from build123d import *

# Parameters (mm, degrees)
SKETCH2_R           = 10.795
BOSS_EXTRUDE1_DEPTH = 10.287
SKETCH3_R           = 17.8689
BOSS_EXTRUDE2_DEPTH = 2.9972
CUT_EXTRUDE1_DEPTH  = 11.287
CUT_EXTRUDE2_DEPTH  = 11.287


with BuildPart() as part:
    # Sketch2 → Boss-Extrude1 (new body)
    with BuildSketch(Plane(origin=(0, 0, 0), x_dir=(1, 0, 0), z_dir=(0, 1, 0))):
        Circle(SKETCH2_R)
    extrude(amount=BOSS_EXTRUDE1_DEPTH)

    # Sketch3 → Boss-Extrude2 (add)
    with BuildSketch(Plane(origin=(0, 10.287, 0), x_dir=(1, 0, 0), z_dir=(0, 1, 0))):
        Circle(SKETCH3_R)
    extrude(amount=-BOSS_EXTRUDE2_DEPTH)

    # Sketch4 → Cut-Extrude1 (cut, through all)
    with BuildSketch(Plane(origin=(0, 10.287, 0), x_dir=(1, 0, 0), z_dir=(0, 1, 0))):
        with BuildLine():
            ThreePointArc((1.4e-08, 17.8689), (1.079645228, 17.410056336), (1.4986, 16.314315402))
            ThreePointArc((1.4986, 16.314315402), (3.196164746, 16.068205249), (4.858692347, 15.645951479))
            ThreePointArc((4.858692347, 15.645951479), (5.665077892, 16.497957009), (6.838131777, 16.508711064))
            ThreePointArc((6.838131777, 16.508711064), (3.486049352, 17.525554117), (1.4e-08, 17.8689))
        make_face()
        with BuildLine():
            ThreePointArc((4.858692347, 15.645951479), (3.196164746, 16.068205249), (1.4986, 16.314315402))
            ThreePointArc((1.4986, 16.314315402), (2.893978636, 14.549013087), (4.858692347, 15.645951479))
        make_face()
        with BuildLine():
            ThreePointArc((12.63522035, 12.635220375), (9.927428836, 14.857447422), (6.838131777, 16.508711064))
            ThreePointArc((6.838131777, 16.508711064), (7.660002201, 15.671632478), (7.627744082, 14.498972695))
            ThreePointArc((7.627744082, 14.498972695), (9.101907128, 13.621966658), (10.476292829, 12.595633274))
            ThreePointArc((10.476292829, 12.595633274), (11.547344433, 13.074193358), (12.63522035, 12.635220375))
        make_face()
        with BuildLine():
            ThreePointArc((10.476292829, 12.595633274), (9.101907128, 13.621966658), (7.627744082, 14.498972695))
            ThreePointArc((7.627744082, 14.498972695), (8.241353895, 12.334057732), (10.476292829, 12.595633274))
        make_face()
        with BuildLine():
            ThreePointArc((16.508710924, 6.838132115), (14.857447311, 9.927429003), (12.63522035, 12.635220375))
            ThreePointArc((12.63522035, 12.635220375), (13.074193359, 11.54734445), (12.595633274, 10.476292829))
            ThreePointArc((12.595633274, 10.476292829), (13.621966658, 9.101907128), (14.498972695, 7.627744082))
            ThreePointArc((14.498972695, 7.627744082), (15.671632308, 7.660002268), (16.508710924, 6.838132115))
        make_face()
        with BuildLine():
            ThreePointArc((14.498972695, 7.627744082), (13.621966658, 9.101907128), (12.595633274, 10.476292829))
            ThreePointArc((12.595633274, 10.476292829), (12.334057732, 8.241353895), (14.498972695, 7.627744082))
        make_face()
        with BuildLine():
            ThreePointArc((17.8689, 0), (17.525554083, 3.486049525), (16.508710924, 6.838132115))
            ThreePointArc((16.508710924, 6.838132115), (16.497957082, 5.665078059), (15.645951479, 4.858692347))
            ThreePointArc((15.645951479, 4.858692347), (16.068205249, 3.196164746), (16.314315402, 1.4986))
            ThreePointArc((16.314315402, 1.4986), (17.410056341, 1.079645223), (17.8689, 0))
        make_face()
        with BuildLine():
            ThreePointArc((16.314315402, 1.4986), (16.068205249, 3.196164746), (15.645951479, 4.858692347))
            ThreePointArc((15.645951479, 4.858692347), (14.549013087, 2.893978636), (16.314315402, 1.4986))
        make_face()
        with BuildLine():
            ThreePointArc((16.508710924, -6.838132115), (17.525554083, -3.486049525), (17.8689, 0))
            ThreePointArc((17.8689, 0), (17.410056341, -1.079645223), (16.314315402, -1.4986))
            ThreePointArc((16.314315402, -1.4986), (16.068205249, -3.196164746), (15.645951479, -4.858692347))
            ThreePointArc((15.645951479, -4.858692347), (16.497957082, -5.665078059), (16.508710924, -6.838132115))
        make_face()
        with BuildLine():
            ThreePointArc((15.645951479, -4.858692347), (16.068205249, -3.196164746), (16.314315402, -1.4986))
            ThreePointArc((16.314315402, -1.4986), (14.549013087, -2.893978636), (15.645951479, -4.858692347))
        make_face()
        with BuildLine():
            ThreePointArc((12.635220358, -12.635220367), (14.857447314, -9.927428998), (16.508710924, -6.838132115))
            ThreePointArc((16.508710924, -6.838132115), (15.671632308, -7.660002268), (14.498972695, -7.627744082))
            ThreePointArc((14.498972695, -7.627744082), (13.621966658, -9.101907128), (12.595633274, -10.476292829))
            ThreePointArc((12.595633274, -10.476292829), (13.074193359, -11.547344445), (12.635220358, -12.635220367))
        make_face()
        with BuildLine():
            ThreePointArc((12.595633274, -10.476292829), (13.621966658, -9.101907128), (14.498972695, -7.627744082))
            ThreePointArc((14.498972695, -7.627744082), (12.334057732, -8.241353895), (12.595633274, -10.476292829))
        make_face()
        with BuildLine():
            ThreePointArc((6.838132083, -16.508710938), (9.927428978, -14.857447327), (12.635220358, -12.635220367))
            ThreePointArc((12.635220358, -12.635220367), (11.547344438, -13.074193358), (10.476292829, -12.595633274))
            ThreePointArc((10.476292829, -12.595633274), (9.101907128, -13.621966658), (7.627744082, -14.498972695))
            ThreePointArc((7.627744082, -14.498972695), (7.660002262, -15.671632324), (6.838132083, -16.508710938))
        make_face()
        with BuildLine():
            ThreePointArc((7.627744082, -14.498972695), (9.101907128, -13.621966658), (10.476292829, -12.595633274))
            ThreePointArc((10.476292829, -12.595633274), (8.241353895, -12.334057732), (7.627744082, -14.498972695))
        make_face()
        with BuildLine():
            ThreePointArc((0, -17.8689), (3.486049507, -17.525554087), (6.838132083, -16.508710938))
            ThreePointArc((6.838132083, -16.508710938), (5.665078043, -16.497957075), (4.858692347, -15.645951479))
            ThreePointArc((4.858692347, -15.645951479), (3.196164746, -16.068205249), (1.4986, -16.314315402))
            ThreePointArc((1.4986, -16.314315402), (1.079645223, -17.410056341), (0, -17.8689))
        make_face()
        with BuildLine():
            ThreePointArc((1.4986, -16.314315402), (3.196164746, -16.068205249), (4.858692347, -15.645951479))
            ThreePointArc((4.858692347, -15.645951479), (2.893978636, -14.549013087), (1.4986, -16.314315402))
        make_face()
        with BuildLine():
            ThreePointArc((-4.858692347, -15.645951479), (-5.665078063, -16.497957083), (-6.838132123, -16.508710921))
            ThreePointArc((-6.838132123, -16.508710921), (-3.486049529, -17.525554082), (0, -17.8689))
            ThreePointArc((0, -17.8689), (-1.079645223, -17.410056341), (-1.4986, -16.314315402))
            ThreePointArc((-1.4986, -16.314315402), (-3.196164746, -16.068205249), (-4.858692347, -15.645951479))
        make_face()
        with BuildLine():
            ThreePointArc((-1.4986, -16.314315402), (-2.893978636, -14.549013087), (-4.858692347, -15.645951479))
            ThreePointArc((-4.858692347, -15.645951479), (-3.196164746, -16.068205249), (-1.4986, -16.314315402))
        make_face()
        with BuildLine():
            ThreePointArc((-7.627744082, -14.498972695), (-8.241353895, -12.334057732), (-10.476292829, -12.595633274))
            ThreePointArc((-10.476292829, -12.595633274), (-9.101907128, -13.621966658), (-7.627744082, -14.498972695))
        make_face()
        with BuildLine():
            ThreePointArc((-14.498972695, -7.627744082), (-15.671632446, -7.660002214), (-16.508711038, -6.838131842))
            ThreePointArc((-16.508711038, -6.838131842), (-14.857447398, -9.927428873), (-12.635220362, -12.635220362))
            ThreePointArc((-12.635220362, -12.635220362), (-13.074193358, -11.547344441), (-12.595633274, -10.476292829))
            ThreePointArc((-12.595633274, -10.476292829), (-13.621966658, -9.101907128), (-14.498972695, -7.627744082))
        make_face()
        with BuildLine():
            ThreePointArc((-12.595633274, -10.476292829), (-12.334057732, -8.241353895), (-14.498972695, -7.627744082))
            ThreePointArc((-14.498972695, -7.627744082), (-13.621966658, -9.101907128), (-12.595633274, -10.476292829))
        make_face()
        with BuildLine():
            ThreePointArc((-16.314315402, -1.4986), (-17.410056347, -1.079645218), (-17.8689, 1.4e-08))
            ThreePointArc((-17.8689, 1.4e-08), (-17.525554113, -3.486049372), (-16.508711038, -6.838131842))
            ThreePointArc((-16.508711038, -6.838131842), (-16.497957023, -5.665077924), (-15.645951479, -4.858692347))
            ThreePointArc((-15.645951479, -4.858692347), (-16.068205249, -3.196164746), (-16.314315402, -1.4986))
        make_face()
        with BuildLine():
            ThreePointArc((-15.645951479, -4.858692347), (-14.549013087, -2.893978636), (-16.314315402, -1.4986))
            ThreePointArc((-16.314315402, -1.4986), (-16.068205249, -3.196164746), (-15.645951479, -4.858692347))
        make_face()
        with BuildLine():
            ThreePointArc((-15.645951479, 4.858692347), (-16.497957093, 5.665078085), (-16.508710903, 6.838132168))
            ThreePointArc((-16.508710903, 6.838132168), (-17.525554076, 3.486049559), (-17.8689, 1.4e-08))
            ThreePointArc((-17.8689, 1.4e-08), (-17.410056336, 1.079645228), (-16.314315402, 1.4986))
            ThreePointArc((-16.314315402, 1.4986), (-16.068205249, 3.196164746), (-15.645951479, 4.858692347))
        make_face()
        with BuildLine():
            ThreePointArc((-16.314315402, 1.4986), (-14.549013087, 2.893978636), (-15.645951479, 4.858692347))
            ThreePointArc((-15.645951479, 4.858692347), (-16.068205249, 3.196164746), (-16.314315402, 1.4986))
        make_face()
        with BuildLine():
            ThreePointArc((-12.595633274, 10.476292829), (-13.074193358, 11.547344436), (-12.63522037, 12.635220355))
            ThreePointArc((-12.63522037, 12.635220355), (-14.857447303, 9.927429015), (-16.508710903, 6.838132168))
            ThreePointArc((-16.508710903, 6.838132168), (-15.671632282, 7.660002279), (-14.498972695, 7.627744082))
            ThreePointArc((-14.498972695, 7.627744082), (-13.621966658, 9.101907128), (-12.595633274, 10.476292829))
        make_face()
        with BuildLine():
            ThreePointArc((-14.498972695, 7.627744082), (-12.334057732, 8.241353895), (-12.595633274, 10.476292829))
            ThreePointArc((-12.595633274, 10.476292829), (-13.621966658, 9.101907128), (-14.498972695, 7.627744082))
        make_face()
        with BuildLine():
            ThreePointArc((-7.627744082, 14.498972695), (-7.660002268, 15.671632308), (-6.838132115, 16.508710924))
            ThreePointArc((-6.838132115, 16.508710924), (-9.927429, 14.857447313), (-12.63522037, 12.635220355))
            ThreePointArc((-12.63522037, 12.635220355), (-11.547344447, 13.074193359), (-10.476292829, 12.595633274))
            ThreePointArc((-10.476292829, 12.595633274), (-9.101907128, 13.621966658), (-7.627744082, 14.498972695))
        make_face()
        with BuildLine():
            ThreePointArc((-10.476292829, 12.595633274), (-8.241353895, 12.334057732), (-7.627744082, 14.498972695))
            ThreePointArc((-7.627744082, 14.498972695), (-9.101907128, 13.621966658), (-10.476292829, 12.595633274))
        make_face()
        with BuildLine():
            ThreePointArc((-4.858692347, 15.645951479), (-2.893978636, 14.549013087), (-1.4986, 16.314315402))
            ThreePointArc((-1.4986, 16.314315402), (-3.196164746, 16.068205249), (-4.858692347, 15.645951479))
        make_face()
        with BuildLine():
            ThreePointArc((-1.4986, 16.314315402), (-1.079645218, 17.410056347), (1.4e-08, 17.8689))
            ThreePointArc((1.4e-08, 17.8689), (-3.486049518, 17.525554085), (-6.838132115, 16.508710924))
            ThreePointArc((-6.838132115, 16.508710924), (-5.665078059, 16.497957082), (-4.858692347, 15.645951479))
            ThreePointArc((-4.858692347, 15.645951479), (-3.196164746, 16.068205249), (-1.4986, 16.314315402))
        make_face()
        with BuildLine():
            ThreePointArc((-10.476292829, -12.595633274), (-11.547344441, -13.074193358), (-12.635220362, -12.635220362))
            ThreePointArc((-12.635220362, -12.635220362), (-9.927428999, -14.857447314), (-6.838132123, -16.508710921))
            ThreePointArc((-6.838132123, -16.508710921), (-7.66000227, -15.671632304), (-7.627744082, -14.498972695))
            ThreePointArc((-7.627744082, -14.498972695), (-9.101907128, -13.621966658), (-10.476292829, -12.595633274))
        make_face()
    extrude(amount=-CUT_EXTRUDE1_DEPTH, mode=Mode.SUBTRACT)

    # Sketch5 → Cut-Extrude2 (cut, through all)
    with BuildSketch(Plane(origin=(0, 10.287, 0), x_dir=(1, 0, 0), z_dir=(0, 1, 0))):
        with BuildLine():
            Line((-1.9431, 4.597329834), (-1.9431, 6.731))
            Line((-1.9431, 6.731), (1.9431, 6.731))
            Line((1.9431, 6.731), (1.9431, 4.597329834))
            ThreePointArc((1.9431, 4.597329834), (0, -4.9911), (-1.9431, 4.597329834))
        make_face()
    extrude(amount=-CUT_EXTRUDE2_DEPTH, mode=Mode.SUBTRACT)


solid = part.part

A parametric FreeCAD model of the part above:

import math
import FreeCAD as App
import Part
import Sketcher
Q = App.Units.Quantity

doc = App.newDocument("Part")
body = doc.addObject("PartDesign::Body", "Body")

# Sketch on XZ plane
sketch1 = body.newObject("Sketcher::SketchObject", "Sketch")
sketch1.AttachmentSupport = (doc.getObject("XZ_Plane"), [""])
sketch1.MapMode = "FlatFace"
sketch1.addGeometry(Part.Circle(App.Vector(0, 0, 0), App.Vector(0, 0, 1), 11), False)
sketch1.addConstraint([
    Sketcher.Constraint("Coincident", 0, 3, -1, 1),
    Sketcher.Constraint("Diameter", 0, Q("0.85 in")),
])
pad1 = body.newObject("PartDesign::Pad", "Pad")
pad1.Profile = sketch1
pad1.Length = Q("0.405 in")
pad1.Reversed = True

# Sketch on XZ plane
sketch2 = body.newObject("Sketcher::SketchObject", "Sketch001")
sketch2.AttachmentSupport = (doc.getObject("XZ_Plane"), [""])
sketch2.MapMode = "FlatFace"
sketch2.AttachmentOffset = App.Placement(App.Vector(0, 0, -0.405 * 25.4), App.Rotation())
sketch2.addGeometry(Part.Circle(App.Vector(0, 0, 0), App.Vector(0, 0, 1), 18), False)
sketch2.addConstraint([
    Sketcher.Constraint("Coincident", 0, 3, -1, 1),
    Sketcher.Constraint("Diameter", 0, Q("1.407 in")),
])
pad2 = body.newObject("PartDesign::Pad", "Pad001")
pad2.Profile = sketch2
pad2.Length = Q("0.118 in")

# Sketch on XZ plane
sketch3 = body.newObject("Sketcher::SketchObject", "Sketch002")
sketch3.AttachmentSupport = (doc.getObject("XZ_Plane"), [""])
sketch3.MapMode = "FlatFace"
sketch3.AttachmentOffset = App.Placement(App.Vector(0, 0, -0.405 * 25.4), App.Rotation())
sketch3.addGeometry([
    Part.ArcOfCircle(Part.Circle(App.Vector(0, -16.4, 0), App.Vector(0, 0, 1), 1.5), math.radians(-90), math.radians(2)),  # 0
    Part.ArcOfCircle(Part.Circle(App.Vector(3.2, -16.3, 0), App.Vector(0, 0, 1), 1.7), math.radians(20), math.radians(182)),  # 1
    Part.ArcOfCircle(Part.Circle(App.Vector(6.3, -15.1, 0), App.Vector(0, 0, 1), 1.5), math.radians(-160), math.radians(-68)),  # 2
    Part.ArcOfCircle(Part.Circle(App.Vector(0, 0, 0), App.Vector(0, 0, 1), 17.9), math.radians(-90), math.radians(-68)),  # 3
    Part.ArcOfCircle(Part.Circle(App.Vector(0, 0, 0), App.Vector(0, 0, 1), 17.9), math.radians(-68), math.radians(-45)),  # 4
    Part.ArcOfCircle(Part.Circle(App.Vector(6.3, -15.1, 0), App.Vector(0, 0, 1), 1.5), math.radians(-68), math.radians(25)),  # 5
    Part.ArcOfCircle(Part.Circle(App.Vector(9.2, -13.8, 0), App.Vector(0, 0, 1), 1.7), math.radians(43), math.radians(205)),  # 6
    Part.ArcOfCircle(Part.Circle(App.Vector(11.6, -11.6, 0), App.Vector(0, 0, 1), 1.5), math.radians(-137), math.radians(-45)),  # 7
    Part.ArcOfCircle(Part.Circle(App.Vector(0, 0, 0), App.Vector(0, 0, 1), 17.9), math.radians(-45), math.radians(-23)),  # 8
    Part.ArcOfCircle(Part.Circle(App.Vector(11.6, -11.6, 0), App.Vector(0, 0, 1), 1.5), math.radians(-45), math.radians(47)),  # 9
    Part.ArcOfCircle(Part.Circle(App.Vector(13.8, -9.2, 0), App.Vector(0, 0, 1), 1.7), math.radians(65), math.radians(227)),  # 10
    Part.ArcOfCircle(Part.Circle(App.Vector(15.1, -6.3, 0), App.Vector(0, 0, 1), 1.5), math.radians(-115), math.radians(-23)),  # 11
    Part.ArcOfCircle(Part.Circle(App.Vector(0, 0, 0), App.Vector(0, 0, 1), 17.9), math.radians(-23), math.radians(0)),  # 12
    Part.ArcOfCircle(Part.Circle(App.Vector(15.1, -6.3, 0), App.Vector(0, 0, 1), 1.5), math.radians(-23), math.radians(70)),  # 13
    Part.ArcOfCircle(Part.Circle(App.Vector(16.3, -3.2, 0), App.Vector(0, 0, 1), 1.7), math.radians(88), math.radians(250)),  # 14
    Part.ArcOfCircle(Part.Circle(App.Vector(16.4, 0, 0), App.Vector(0, 0, 1), 1.5), math.radians(-92), math.radians(0)),  # 15
    Part.ArcOfCircle(Part.Circle(App.Vector(0, 0, 0), App.Vector(0, 0, 1), 17.9), math.radians(0), math.radians(23)),  # 16
    Part.ArcOfCircle(Part.Circle(App.Vector(16.4, 0, 0), App.Vector(0, 0, 1), 1.5), math.radians(0), math.radians(92)),  # 17
    Part.ArcOfCircle(Part.Circle(App.Vector(16.3, 3.2, 0), App.Vector(0, 0, 1), 1.7), math.radians(110), math.radians(272)),  # 18
    Part.ArcOfCircle(Part.Circle(App.Vector(15.1, 6.3, 0), App.Vector(0, 0, 1), 1.5), math.radians(-70), math.radians(23)),  # 19
    Part.ArcOfCircle(Part.Circle(App.Vector(0, 0, 0), App.Vector(0, 0, 1), 17.9), math.radians(23), math.radians(45)),  # 20
    Part.ArcOfCircle(Part.Circle(App.Vector(15.1, 6.3, 0), App.Vector(0, 0, 1), 1.5), math.radians(23), math.radians(115)),  # 21
    Part.ArcOfCircle(Part.Circle(App.Vector(13.8, 9.2, 0), App.Vector(0, 0, 1), 1.7), math.radians(133), math.radians(295)),  # 22
    Part.ArcOfCircle(Part.Circle(App.Vector(11.6, 11.6, 0), App.Vector(0, 0, 1), 1.5), math.radians(-47), math.radians(45)),  # 23
    Part.ArcOfCircle(Part.Circle(App.Vector(0, 0, 0), App.Vector(0, 0, 1), 17.9), math.radians(45), math.radians(67)),  # 24
    Part.ArcOfCircle(Part.Circle(App.Vector(11.6, 11.6, 0), App.Vector(0, 0, 1), 1.5), math.radians(45), math.radians(137)),  # 25
    Part.ArcOfCircle(Part.Circle(App.Vector(9.2, 13.8, 0), App.Vector(0, 0, 1), 1.7), math.radians(155), math.radians(317)),  # 26
    Part.ArcOfCircle(Part.Circle(App.Vector(6.3, 15.1, 0), App.Vector(0, 0, 1), 1.5), math.radians(-25), math.radians(67)),  # 27
    Part.ArcOfCircle(Part.Circle(App.Vector(0, 0, 0), App.Vector(0, 0, 1), 17.9), math.radians(67), math.radians(90)),  # 28
    Part.ArcOfCircle(Part.Circle(App.Vector(6.3, 15.1, 0), App.Vector(0, 0, 1), 1.5), math.radians(67), math.radians(160)),  # 29
    Part.ArcOfCircle(Part.Circle(App.Vector(3.2, 16.3, 0), App.Vector(0, 0, 1), 1.7), math.radians(178), math.radians(340)),  # 30
    Part.ArcOfCircle(Part.Circle(App.Vector(0, 16.4, 0), App.Vector(0, 0, 1), 1.5), math.radians(-2), math.radians(90)),  # 31
    Part.ArcOfCircle(Part.Circle(App.Vector(-6.3, 15.1, 0), App.Vector(0, 0, 1), 1.5), math.radians(20), math.radians(113)),  # 32
    Part.ArcOfCircle(Part.Circle(App.Vector(0, 0, 0), App.Vector(0, 0, 1), 17.9), math.radians(90), math.radians(113)),  # 33
    Part.ArcOfCircle(Part.Circle(App.Vector(0, 16.4, 0), App.Vector(0, 0, 1), 1.5), math.radians(90), math.radians(182)),  # 34
    Part.ArcOfCircle(Part.Circle(App.Vector(-3.2, 16.3, 0), App.Vector(0, 0, 1), 1.7), math.radians(-160), math.radians(2)),  # 35
    Part.ArcOfCircle(Part.Circle(App.Vector(-9.2, 13.8, 0), App.Vector(0, 0, 1), 1.7), math.radians(-137), math.radians(25)),  # 36
    Part.ArcOfCircle(Part.Circle(App.Vector(-11.6, 11.6, 0), App.Vector(0, 0, 1), 1.5), math.radians(43), math.radians(135)),  # 37
    Part.ArcOfCircle(Part.Circle(App.Vector(0, 0, 0), App.Vector(0, 0, 1), 17.9), math.radians(113), math.radians(135)),  # 38
    Part.ArcOfCircle(Part.Circle(App.Vector(-6.3, 15.1, 0), App.Vector(0, 0, 1), 1.5), math.radians(113), math.radians(205)),  # 39
    Part.ArcOfCircle(Part.Circle(App.Vector(-15.1, 6.3, 0), App.Vector(0, 0, 1), 1.5), math.radians(65), math.radians(158)),  # 40
    Part.ArcOfCircle(Part.Circle(App.Vector(0, 0, 0), App.Vector(0, 0, 1), 17.9), math.radians(135), math.radians(158)),  # 41
    Part.ArcOfCircle(Part.Circle(App.Vector(-11.6, 11.6, 0), App.Vector(0, 0, 1), 1.5), math.radians(135), math.radians(227)),  # 42
    Part.ArcOfCircle(Part.Circle(App.Vector(-13.8, 9.2, 0), App.Vector(0, 0, 1), 1.7), math.radians(-115), math.radians(47)),  # 43
    Part.ArcOfCircle(Part.Circle(App.Vector(-16.4, 0, 0), App.Vector(0, 0, 1), 1.5), math.radians(88), math.radians(180)),  # 44
    Part.ArcOfCircle(Part.Circle(App.Vector(0, 0, 0), App.Vector(0, 0, 1), 17.9), math.radians(158), math.radians(180)),  # 45
    Part.ArcOfCircle(Part.Circle(App.Vector(-15.1, 6.3, 0), App.Vector(0, 0, 1), 1.5), math.radians(158), math.radians(250)),  # 46
    Part.ArcOfCircle(Part.Circle(App.Vector(-16.3, 3.2, 0), App.Vector(0, 0, 1), 1.7), math.radians(-92), math.radians(70)),  # 47
    Part.ArcOfCircle(Part.Circle(App.Vector(-15.1, -6.3, 0), App.Vector(0, 0, 1), 1.5), math.radians(110), math.radians(203)),  # 48
    Part.ArcOfCircle(Part.Circle(App.Vector(0, 0, 0), App.Vector(0, 0, 1), 17.9), math.radians(-180), math.radians(-157)),  # 49
    Part.ArcOfCircle(Part.Circle(App.Vector(-16.4, 0, 0), App.Vector(0, 0, 1), 1.5), math.radians(-180), math.radians(-88)),  # 50
    Part.ArcOfCircle(Part.Circle(App.Vector(-16.3, -3.2, 0), App.Vector(0, 0, 1), 1.7), math.radians(-70), math.radians(92)),  # 51
    Part.ArcOfCircle(Part.Circle(App.Vector(-11.6, -11.6, 0), App.Vector(0, 0, 1), 1.5), math.radians(133), math.radians(225)),  # 52
    Part.ArcOfCircle(Part.Circle(App.Vector(0, 0, 0), App.Vector(0, 0, 1), 17.9), math.radians(-157), math.radians(-135)),  # 53
    Part.ArcOfCircle(Part.Circle(App.Vector(-15.1, -6.3, 0), App.Vector(0, 0, 1), 1.5), math.radians(-157), math.radians(-65)),  # 54
    Part.ArcOfCircle(Part.Circle(App.Vector(-13.8, -9.2, 0), App.Vector(0, 0, 1), 1.7), math.radians(-47), math.radians(115)),  # 55
    Part.ArcOfCircle(Part.Circle(App.Vector(-6.3, -15.1, 0), App.Vector(0, 0, 1), 1.5), math.radians(155), math.radians(247)),  # 56
    Part.ArcOfCircle(Part.Circle(App.Vector(0, 0, 0), App.Vector(0, 0, 1), 17.9), math.radians(-135), math.radians(-113)),  # 57
    Part.ArcOfCircle(Part.Circle(App.Vector(-11.6, -11.6, 0), App.Vector(0, 0, 1), 1.5), math.radians(-135), math.radians(-43)),  # 58
    Part.ArcOfCircle(Part.Circle(App.Vector(-9.2, -13.8, 0), App.Vector(0, 0, 1), 1.7), math.radians(-25), math.radians(137)),  # 59
    Part.ArcOfCircle(Part.Circle(App.Vector(-3.2, -16.3, 0), App.Vector(0, 0, 1), 1.7), math.radians(-2), math.radians(160)),  # 60
    Part.ArcOfCircle(Part.Circle(App.Vector(0, -16.4, 0), App.Vector(0, 0, 1), 1.5), math.radians(178), math.radians(270)),  # 61
    Part.ArcOfCircle(Part.Circle(App.Vector(0, 0, 0), App.Vector(0, 0, 1), 17.9), math.radians(-113), math.radians(-90)),  # 62
    Part.ArcOfCircle(Part.Circle(App.Vector(-6.3, -15.1, 0), App.Vector(0, 0, 1), 1.5), math.radians(-113), math.radians(-20)),  # 63
], False)
sketch3.addConstraint([
    Sketcher.Constraint("Tangent", 0, 2, 1, 2),
    Sketcher.Constraint("Tangent", 1, 1, 2, 1),
    Sketcher.Constraint("Tangent", 2, 2, 3, 2),
    Sketcher.Constraint("Tangent", 3, 1, 0, 1),
    Sketcher.Constraint("Tangent", 4, 1, 5, 1),
    Sketcher.Constraint("Tangent", 5, 2, 6, 2),
    Sketcher.Constraint("Tangent", 6, 1, 7, 1),
    Sketcher.Constraint("Tangent", 7, 2, 4, 2),
    Sketcher.Constraint("Tangent", 8, 1, 9, 1),
    Sketcher.Constraint("Tangent", 9, 2, 10, 2),
    Sketcher.Constraint("Tangent", 10, 1, 11, 1),
    Sketcher.Constraint("Tangent", 11, 2, 8, 2),
    Sketcher.Constraint("Tangent", 12, 1, 13, 1),
    Sketcher.Constraint("Tangent", 13, 2, 14, 2),
    Sketcher.Constraint("Tangent", 14, 1, 15, 1),
    Sketcher.Constraint("Tangent", 15, 2, 12, 2),
    Sketcher.Constraint("Tangent", 16, 1, 17, 1),
    Sketcher.Constraint("Tangent", 17, 2, 18, 2),
    Sketcher.Constraint("Tangent", 18, 1, 19, 1),
    Sketcher.Constraint("Tangent", 19, 2, 16, 2),
    Sketcher.Constraint("Tangent", 20, 1, 21, 1),
    Sketcher.Constraint("Tangent", 21, 2, 22, 2),
    Sketcher.Constraint("Tangent", 22, 1, 23, 1),
    Sketcher.Constraint("Tangent", 23, 2, 20, 2),
    Sketcher.Constraint("Tangent", 24, 1, 25, 1),
    Sketcher.Constraint("Tangent", 25, 2, 26, 2),
    Sketcher.Constraint("Tangent", 26, 1, 27, 1),
    Sketcher.Constraint("Tangent", 27, 2, 24, 2),
    Sketcher.Constraint("Tangent", 28, 1, 29, 1),
    Sketcher.Constraint("Tangent", 29, 2, 30, 2),
    Sketcher.Constraint("Tangent", 30, 1, 31, 1),
    Sketcher.Constraint("Tangent", 31, 2, 28, 2),
    Sketcher.Constraint("Tangent", 32, 2, 33, 2),
    Sketcher.Constraint("Tangent", 33, 1, 34, 1),
    Sketcher.Constraint("Tangent", 34, 2, 35, 2),
    Sketcher.Constraint("Tangent", 35, 1, 32, 1),
    Sketcher.Constraint("Tangent", 36, 1, 37, 1),
    Sketcher.Constraint("Tangent", 37, 2, 38, 2),
    Sketcher.Constraint("Tangent", 38, 1, 39, 1),
    Sketcher.Constraint("Tangent", 39, 2, 36, 2),
    Sketcher.Constraint("Tangent", 40, 2, 41, 2),
    Sketcher.Constraint("Tangent", 41, 1, 42, 1),
    Sketcher.Constraint("Tangent", 42, 2, 43, 2),
    Sketcher.Constraint("Tangent", 43, 1, 40, 1),
    Sketcher.Constraint("Tangent", 44, 2, 45, 2),
    Sketcher.Constraint("Tangent", 45, 1, 46, 1),
    Sketcher.Constraint("Tangent", 46, 2, 47, 2),
    Sketcher.Constraint("Tangent", 47, 1, 44, 1),
    Sketcher.Constraint("Tangent", 48, 2, 49, 2),
    Sketcher.Constraint("Tangent", 49, 1, 50, 1),
    Sketcher.Constraint("Tangent", 50, 2, 51, 2),
    Sketcher.Constraint("Tangent", 51, 1, 48, 1),
    Sketcher.Constraint("Tangent", 52, 2, 53, 2),
    Sketcher.Constraint("Tangent", 53, 1, 54, 1),
    Sketcher.Constraint("Tangent", 54, 2, 55, 2),
    Sketcher.Constraint("Tangent", 55, 1, 52, 1),
    Sketcher.Constraint("Tangent", 56, 2, 57, 2),
    Sketcher.Constraint("Tangent", 57, 1, 58, 1),
    Sketcher.Constraint("Tangent", 58, 2, 59, 2),
    Sketcher.Constraint("Tangent", 59, 1, 56, 1),
    Sketcher.Constraint("Tangent", 60, 1, 61, 1),
    Sketcher.Constraint("Tangent", 61, 2, 62, 2),
    Sketcher.Constraint("Tangent", 62, 1, 63, 1),
    Sketcher.Constraint("Tangent", 63, 2, 60, 2),
    Sketcher.Constraint("Coincident", 3, 3, -1, 1),
    Sketcher.Constraint("Coincident", 4, 3, -1, 1),
    Sketcher.Constraint("Coincident", 8, 3, -1, 1),
    Sketcher.Constraint("Coincident", 12, 3, -1, 1),
    Sketcher.Constraint("Coincident", 16, 3, -1, 1),
    Sketcher.Constraint("Coincident", 20, 3, -1, 1),
    Sketcher.Constraint("Coincident", 24, 3, -1, 1),
    Sketcher.Constraint("Coincident", 28, 3, -1, 1),
    Sketcher.Constraint("Coincident", 33, 3, -1, 1),
    Sketcher.Constraint("Coincident", 38, 3, -1, 1),
    Sketcher.Constraint("Coincident", 41, 3, -1, 1),
    Sketcher.Constraint("Coincident", 45, 3, -1, 1),
    Sketcher.Constraint("Coincident", 49, 3, -1, 1),
    Sketcher.Constraint("Coincident", 53, 3, -1, 1),
    Sketcher.Constraint("Coincident", 57, 3, -1, 1),
    Sketcher.Constraint("Coincident", 62, 3, -1, 1),
    Sketcher.Constraint("Coincident", 5, 3, 2, 3),
    Sketcher.Constraint("Coincident", 9, 3, 7, 3),
    Sketcher.Constraint("Coincident", 13, 3, 11, 3),
    Sketcher.Constraint("Coincident", 17, 3, 15, 3),
    Sketcher.Constraint("Coincident", 21, 3, 19, 3),
    Sketcher.Constraint("Coincident", 25, 3, 23, 3),
    Sketcher.Constraint("Coincident", 29, 3, 27, 3),
    Sketcher.Constraint("Coincident", 34, 3, 31, 3),
    Sketcher.Constraint("Coincident", 39, 3, 32, 3),
    Sketcher.Constraint("Coincident", 42, 3, 37, 3),
    Sketcher.Constraint("Coincident", 46, 3, 40, 3),
    Sketcher.Constraint("Coincident", 50, 3, 44, 3),
    Sketcher.Constraint("Coincident", 54, 3, 48, 3),
    Sketcher.Constraint("Coincident", 58, 3, 52, 3),
    Sketcher.Constraint("Coincident", 61, 3, 0, 3),
    Sketcher.Constraint("Coincident", 63, 3, 56, 3),
    Sketcher.Constraint("Equal", 0, 2),
    Sketcher.Constraint("Equal", 3, 4),
    Sketcher.Constraint("Equal", 1, 6),
    Sketcher.Constraint("Equal", 5, 7),
    Sketcher.Constraint("Equal", 4, 8),
    Sketcher.Constraint("Equal", 6, 10),
    Sketcher.Constraint("Equal", 9, 11),
    Sketcher.Constraint("Equal", 8, 12),
    Sketcher.Constraint("Equal", 10, 14),
    Sketcher.Constraint("Equal", 13, 15),
    Sketcher.Constraint("Equal", 12, 16),
    Sketcher.Constraint("Equal", 14, 18),
    Sketcher.Constraint("Equal", 17, 19),
    Sketcher.Constraint("Equal", 16, 20),
    Sketcher.Constraint("Equal", 18, 22),
    Sketcher.Constraint("Equal", 21, 23),
    Sketcher.Constraint("Equal", 20, 24),
    Sketcher.Constraint("Equal", 22, 26),
    Sketcher.Constraint("Equal", 25, 27),
    Sketcher.Constraint("Equal", 24, 28),
    Sketcher.Constraint("Equal", 26, 30),
    Sketcher.Constraint("Equal", 29, 31),
    Sketcher.Constraint("Equal", 31, 32),
    Sketcher.Constraint("Equal", 28, 33),
    Sketcher.Constraint("Equal", 30, 35),
    Sketcher.Constraint("Equal", 35, 36),
    Sketcher.Constraint("Equal", 34, 37),
    Sketcher.Constraint("Equal", 33, 38),
    Sketcher.Constraint("Equal", 39, 40),
    Sketcher.Constraint("Equal", 38, 41),
    Sketcher.Constraint("Equal", 36, 43),
    Sketcher.Constraint("Equal", 42, 44),
    Sketcher.Constraint("Equal", 41, 45),
    Sketcher.Constraint("Equal", 43, 47),
    Sketcher.Constraint("Equal", 46, 48),
    Sketcher.Constraint("Equal", 45, 49),
    Sketcher.Constraint("Equal", 47, 51),
    Sketcher.Constraint("Equal", 50, 52),
    Sketcher.Constraint("Equal", 49, 53),
    Sketcher.Constraint("Equal", 51, 55),
    Sketcher.Constraint("Equal", 54, 56),
    Sketcher.Constraint("Equal", 53, 57),
    Sketcher.Constraint("Equal", 55, 59),
    Sketcher.Constraint("Equal", 59, 60),
    Sketcher.Constraint("Equal", 58, 61),
    Sketcher.Constraint("Symmetric", 1, 3, 35, 3, -1, 1),
    Sketcher.Constraint("Symmetric", 10, 3, 43, 3, -1, 1),
    Sketcher.Constraint("Symmetric", 18, 3, 51, 3, -1, 1),
    Sketcher.Constraint("Symmetric", 26, 3, 59, 3, -1, 1),
    Sketcher.Constraint("Symmetric", 30, 3, 35, 3, -2),
    Sketcher.Constraint("Symmetric", 22, 3, 43, 3, -2),
    Sketcher.Constraint("PointOnObject", 15, 3, -1),
    Sketcher.Constraint("Radius", 3, Q("0.7035 in")),
    Sketcher.Constraint("DistanceX", -1, 1, 0, 2, Q("0.059 in")),
    Sketcher.Constraint("DistanceY", 14, 1, -1, 1, Q("0.059 in")),
    Sketcher.Constraint("Radius", 0, 1.499608),
    Sketcher.Constraint("Radius", 1, 1.735033),
    Sketcher.Constraint("DistanceX", -1, 1, 7, 2, 12.63522),
])
pocket1 = body.newObject("PartDesign::Pocket", "Pocket")
pocket1.Profile = sketch3
pocket1.Type = "ThroughAll"
pocket1.Reversed = True

# Sketch on XZ plane
sketch4 = body.newObject("Sketcher::SketchObject", "Sketch003")
sketch4.AttachmentSupport = (doc.getObject("XZ_Plane"), [""])
sketch4.MapMode = "FlatFace"
sketch4.AttachmentOffset = App.Placement(App.Vector(0, 0, -0.405 * 25.4), App.Rotation())
sketch4.addGeometry([
    Part.LineSegment(App.Vector(-1.9, -6.7, 0), App.Vector(-1.9, -4.6, 0)),
    Part.ArcOfCircle(Part.Circle(App.Vector(0, 0, 0), App.Vector(0, 0, 1), 5), math.radians(-67), math.radians(247)),
    Part.LineSegment(App.Vector(1.9, -4.6, 0), App.Vector(1.9, -6.7, 0)),
    Part.LineSegment(App.Vector(1.9, -6.7, 0), App.Vector(-1.9, -6.7, 0)),
], False)
sketch4.addConstraint([
    Sketcher.Constraint("Coincident", 0, 2, 1, 2),
    Sketcher.Constraint("Coincident", 1, 1, 2, 1),
    Sketcher.Constraint("Coincident", 2, 2, 3, 1),
    Sketcher.Constraint("Coincident", 3, 2, 0, 1),
    Sketcher.Constraint("Vertical", 0),
    Sketcher.Constraint("Vertical", 2),
    Sketcher.Constraint("Horizontal", 3),
    Sketcher.Constraint("Coincident", 1, 3, -1, 1),
    Sketcher.Constraint("Horizontal", 0, 2, 1, 1),
    Sketcher.Constraint("Radius", 1, Q("0.1965 in")),
    Sketcher.Constraint("DistanceX", 3, 2, 3, 1, Q("0.153 in")),
    Sketcher.Constraint("DistanceY", 2, 2, -1, 1, Q("0.265 in")),
])
pocket2 = body.newObject("PartDesign::Pocket", "Pocket001")
pocket2.Profile = sketch4
pocket2.Type = "ThroughAll"
pocket2.Reversed = True

doc.recompute()
